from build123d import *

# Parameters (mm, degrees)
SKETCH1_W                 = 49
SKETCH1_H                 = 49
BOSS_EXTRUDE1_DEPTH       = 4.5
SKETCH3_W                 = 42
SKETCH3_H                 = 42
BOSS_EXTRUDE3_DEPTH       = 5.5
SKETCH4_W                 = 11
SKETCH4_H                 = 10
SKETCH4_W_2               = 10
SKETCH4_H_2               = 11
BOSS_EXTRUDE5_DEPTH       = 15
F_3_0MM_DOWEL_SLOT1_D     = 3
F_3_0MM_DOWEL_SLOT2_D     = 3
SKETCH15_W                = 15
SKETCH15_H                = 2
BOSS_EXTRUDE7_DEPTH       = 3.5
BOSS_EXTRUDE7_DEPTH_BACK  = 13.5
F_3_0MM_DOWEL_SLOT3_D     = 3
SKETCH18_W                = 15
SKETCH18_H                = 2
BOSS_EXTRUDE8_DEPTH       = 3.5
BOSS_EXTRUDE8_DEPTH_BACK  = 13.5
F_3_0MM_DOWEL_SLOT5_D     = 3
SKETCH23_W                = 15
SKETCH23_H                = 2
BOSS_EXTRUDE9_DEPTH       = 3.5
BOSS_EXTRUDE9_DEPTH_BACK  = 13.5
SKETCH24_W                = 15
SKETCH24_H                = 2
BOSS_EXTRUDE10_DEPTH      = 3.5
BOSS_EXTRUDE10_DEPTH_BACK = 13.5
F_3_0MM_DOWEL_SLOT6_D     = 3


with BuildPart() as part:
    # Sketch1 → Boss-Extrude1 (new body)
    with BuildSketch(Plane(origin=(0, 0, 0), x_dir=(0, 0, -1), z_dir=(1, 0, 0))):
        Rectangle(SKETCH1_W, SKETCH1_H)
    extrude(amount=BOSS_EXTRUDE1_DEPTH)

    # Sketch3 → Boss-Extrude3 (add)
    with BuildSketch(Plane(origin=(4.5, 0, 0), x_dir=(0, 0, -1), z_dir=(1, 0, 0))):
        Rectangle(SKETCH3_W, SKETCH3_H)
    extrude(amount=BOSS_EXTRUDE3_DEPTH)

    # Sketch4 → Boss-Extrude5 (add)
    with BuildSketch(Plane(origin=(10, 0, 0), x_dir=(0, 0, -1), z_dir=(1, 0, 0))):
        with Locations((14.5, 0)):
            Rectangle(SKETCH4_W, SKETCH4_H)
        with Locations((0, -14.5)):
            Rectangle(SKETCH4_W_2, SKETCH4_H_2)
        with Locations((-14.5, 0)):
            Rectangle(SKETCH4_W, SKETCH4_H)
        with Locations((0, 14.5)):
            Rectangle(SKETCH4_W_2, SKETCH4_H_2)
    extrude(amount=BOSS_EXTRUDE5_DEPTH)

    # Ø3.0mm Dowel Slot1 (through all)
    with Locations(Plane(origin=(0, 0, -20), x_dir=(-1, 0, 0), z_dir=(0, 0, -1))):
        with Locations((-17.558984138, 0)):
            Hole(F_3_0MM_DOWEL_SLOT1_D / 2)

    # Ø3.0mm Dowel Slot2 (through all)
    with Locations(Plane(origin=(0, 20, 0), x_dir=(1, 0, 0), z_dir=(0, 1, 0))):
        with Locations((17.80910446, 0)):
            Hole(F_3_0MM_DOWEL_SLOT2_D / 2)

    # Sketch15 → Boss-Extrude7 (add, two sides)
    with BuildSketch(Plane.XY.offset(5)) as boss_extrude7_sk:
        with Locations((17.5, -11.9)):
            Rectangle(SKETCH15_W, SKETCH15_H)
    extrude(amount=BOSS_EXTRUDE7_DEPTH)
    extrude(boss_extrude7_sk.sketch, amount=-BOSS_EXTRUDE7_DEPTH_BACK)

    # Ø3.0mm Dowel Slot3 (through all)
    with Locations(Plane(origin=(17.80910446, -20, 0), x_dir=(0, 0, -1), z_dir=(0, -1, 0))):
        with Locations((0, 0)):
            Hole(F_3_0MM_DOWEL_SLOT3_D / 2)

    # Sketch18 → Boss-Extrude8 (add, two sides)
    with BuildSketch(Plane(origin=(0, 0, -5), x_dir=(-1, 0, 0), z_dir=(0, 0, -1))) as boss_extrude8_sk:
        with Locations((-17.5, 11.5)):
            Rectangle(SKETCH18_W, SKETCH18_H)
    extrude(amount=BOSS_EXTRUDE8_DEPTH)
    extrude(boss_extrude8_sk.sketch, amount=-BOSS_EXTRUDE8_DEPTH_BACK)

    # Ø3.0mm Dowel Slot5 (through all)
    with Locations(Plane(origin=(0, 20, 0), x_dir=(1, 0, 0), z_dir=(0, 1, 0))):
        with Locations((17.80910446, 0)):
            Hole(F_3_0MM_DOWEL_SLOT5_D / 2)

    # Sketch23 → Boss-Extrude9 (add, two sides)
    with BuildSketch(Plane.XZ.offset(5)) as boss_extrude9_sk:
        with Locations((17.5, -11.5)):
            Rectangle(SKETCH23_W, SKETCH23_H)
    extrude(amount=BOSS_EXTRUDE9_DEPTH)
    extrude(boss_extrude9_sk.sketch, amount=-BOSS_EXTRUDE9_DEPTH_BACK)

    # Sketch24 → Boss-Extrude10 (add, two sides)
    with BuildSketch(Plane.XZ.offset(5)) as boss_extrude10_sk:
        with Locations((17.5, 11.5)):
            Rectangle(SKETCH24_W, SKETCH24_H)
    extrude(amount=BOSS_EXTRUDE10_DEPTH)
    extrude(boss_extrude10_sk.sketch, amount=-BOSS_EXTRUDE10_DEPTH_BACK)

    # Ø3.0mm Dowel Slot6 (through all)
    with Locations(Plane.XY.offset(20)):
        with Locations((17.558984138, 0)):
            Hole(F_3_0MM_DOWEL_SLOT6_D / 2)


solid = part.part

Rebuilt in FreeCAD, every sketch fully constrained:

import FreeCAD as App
import Part
import Sketcher
Q = App.Units.Quantity


def add_polygon(sketch, points):
    """Adds a closed chain of lines whose ends are joined by coincident constraints."""
    first, n = sketch.GeometryCount, len(points)
    for a, b in zip(points, points[1:] + points[:1]):
        sketch.addGeometry(Part.LineSegment(App.Vector(*a, 0), App.Vector(*b, 0)), False)
    for i in range(n):
        sketch.addConstraint(Sketcher.Constraint("Coincident", first + i, 2, first + (i + 1) % n, 1))

doc = App.newDocument("Part")
body = doc.addObject("PartDesign::Body", "Body")

# Sketch on YZ plane
sketch1 = body.newObject("Sketcher::SketchObject", "Sketch")
sketch1.AttachmentSupport = (doc.getObject("YZ_Plane"), [""])
sketch1.MapMode = "FlatFace"
add_polygon(sketch1, [(24, 24), (-24, 24), (-24, -24), (24, -24)])  # lines 0-3
sketch1.addConstraint(Sketcher.Constraint("Horizontal", 0))
sketch1.addConstraint(Sketcher.Constraint("Vertical", 1))
sketch1.addConstraint(Sketcher.Constraint("Horizontal", 2))
sketch1.addConstraint(Sketcher.Constraint("Vertical", 3))
sketch1.addConstraint(Sketcher.Constraint("Symmetric", 0, 2, 2, 2, -1, 1))
sketch1.addConstraint(Sketcher.Constraint("Equal", 2, 1))
sketch1.addConstraint(Sketcher.Constraint("DistanceX", 0, 2, 0, 1, Q("49 mm")))
pad1 = body.newObject("PartDesign::Pad", "Pad")
pad1.Profile = sketch1
pad1.Length = 4.5

# Sketch on YZ plane
sketch2 = body.newObject("Sketcher::SketchObject", "Sketch001")
sketch2.AttachmentSupport = (doc.getObject("YZ_Plane"), [""])
sketch2.MapMode = "FlatFace"
sketch2.AttachmentOffset = App.Placement(App.Vector(0, 0, 4.5), App.Rotation())
add_polygon(sketch2, [(21, 21), (-21, 21), (-21, -21), (21, -21)])  # lines 0-3
sketch2.addConstraint(Sketcher.Constraint("Horizontal", 0))
sketch2.addConstraint(Sketcher.Constraint("Vertical", 1))
sketch2.addConstraint(Sketcher.Constraint("Horizontal", 2))
sketch2.addConstraint(Sketcher.Constraint("Vertical", 3))
sketch2.addConstraint(Sketcher.Constraint("Symmetric", 0, 2, 2, 2, -1, 1))
sketch2.addConstraint(Sketcher.Constraint("Equal", 2, 1))
sketch2.addConstraint(Sketcher.Constraint("DistanceX", 0, 2, 0, 1, Q("42 mm")))
pad2 = body.newObject("PartDesign::Pad", "Pad001")
pad2.Profile = sketch2
pad2.Length = 5.5

# Sketch on YZ plane
sketch3 = body.newObject("Sketcher::SketchObject", "Sketch002")
sketch3.AttachmentSupport = (doc.getObject("YZ_Plane"), [""])
sketch3.MapMode = "FlatFace"
sketch3.AttachmentOffset = App.Placement(App.Vector(0, 0, 10), App.Rotation())
add_polygon(sketch3, [(5, -9), (-5, -9), (-5, -20), (5, -20)])  # lines 0-3
add_polygon(sketch3, [(-9, 5), (-20, 5), (-20, -5), (-9, -5)])  # lines 4-7
add_polygon(sketch3, [(5, 20), (-5, 20), (-5, 9), (5, 9)])  # lines 8-11
add_polygon(sketch3, [(20, 5), (9, 5), (9, -5), (20, -5)])  # lines 12-15
sketch3.addConstraint(Sketcher.Constraint("Horizontal", 0))
sketch3.addConstraint(Sketcher.Constraint("Vertical", 1))
sketch3.addConstraint(Sketcher.Constraint("Horizontal", 2))
sketch3.addConstraint(Sketcher.Constraint("Vertical", 3))
sketch3.addConstraint(Sketcher.Constraint("Horizontal", 4))
sketch3.addConstraint(Sketcher.Constraint("Vertical", 5))
sketch3.addConstraint(Sketcher.Constraint("Horizontal", 6))
sketch3.addConstraint(Sketcher.Constraint("Vertical", 7))
sketch3.addConstraint(Sketcher.Constraint("Horizontal", 8))
sketch3.addConstraint(Sketcher.Constraint("Vertical", 9))
sketch3.addConstraint(Sketcher.Constraint("Horizontal", 10))
sketch3.addConstraint(Sketcher.Constraint("Vertical", 11))
sketch3.addConstraint(Sketcher.Constraint("Horizontal", 12))
sketch3.addConstraint(Sketcher.Constraint("Vertical", 13))
sketch3.addConstraint(Sketcher.Constraint("Horizontal", 14))
sketch3.addConstraint(Sketcher.Constraint("Vertical", 15))
sketch3.addConstraint(Sketcher.Constraint("Symmetric", 2, 2, 8, 2, -1, 1))
sketch3.addConstraint(Sketcher.Constraint("Symmetric", 0, 2, 10, 2, -1, 1))
sketch3.addConstraint(Sketcher.Constraint("Symmetric", 6, 2, 12, 2, -1, 1))
sketch3.addConstraint(Sketcher.Constraint("Symmetric", 4, 2, 14, 2, -1, 1))
sketch3.addConstraint(Sketcher.Constraint("Horizontal", 7, 2, 12, 2))
sketch3.addConstraint(Sketcher.Constraint("Vertical", 1, 2, 8, 2))
sketch3.addConstraint(Sketcher.Constraint("Equal", 14, 1))
sketch3.addConstraint(Sketcher.Constraint("Equal", 10, 5))
sketch3.addConstraint(Sketcher.Constraint("DistanceX", 0, 2, 0, 1, Q("10 mm")))
sketch3.addConstraint(Sketcher.Constraint("DistanceX", 4, 2, 4, 1, Q("11 mm")))
sketch3.addConstraint(Sketcher.Constraint("DistanceY", 0, 2, -1, 1, Q("9 mm")))
sketch3.addConstraint(Sketcher.Constraint("DistanceX", 4, 2, -1, 1, Q("20 mm")))
pad3 = body.newObject("PartDesign::Pad", "Pad002")
pad3.Profile = sketch3
pad3.Length = 15

# Sketch on XY plane
sketch4 = body.newObject("Sketcher::SketchObject", "Sketch003")
sketch4.AttachmentSupport = (doc.getObject("XY_Plane"), [""])
sketch4.MapMode = "FlatFace"
sketch4.AttachmentOffset = App.Placement(App.Vector(0, 0, -20), App.Rotation())
sketch4.addGeometry(Part.Circle(App.Vector(17.6, 0, 0), App.Vector(0, 0, 1), 1.5), False)
sketch4.addConstraint(Sketcher.Constraint("PointOnObject", 0, 3, -1))
sketch4.addConstraint(Sketcher.Constraint("Diameter", 0, Q("3 mm")))
sketch4.addConstraint(Sketcher.Constraint("DistanceX", -1, 1, 0, 3, Q("17.558984 mm")))
doc.recompute()
hole = body.newObject("PartDesign::Hole", "Hole")
hole.Profile = sketch4
hole.ThreadType = "None"
hole.Diameter = 3
hole.DepthType = "ThroughAll"
hole.Reversed = True

# Sketch on XZ plane
sketch5 = body.newObject("Sketcher::SketchObject", "Sketch004")
sketch5.AttachmentSupport = (doc.getObject("XZ_Plane"), [""])
sketch5.MapMode = "FlatFace"
sketch5.AttachmentOffset = App.Placement(App.Vector(0, 0, -20), App.Rotation())
sketch5.addGeometry(Part.Circle(App.Vector(17.8, 0, 0), App.Vector(0, 0, 1), 1.5), False)
sketch5.addConstraint(Sketcher.Constraint("PointOnObject", 0, 3, -1))
sketch5.addConstraint(Sketcher.Constraint("Diameter", 0, Q("3 mm")))
sketch5.addConstraint(Sketcher.Constraint("DistanceX", -1, 1, 0, 3, Q("17.809104 mm")))
doc.recompute()
hole2 = body.newObject("PartDesign::Hole", "Hole001")
hole2.Profile = sketch5
hole2.ThreadType = "None"
hole2.Diameter = 3
hole2.DepthType = "ThroughAll"
hole2.Reversed = True

# Sketch on XY plane
sketch6 = body.newObject("Sketcher::SketchObject", "Sketch005")
sketch6.AttachmentSupport = (doc.getObject("XY_Plane"), [""])
sketch6.MapMode = "FlatFace"
sketch6.AttachmentOffset = App.Placement(App.Vector(0, 0, 5), App.Rotation())
add_polygon(sketch6, [(10, -10.9), (10, -12.9), (25, -12.9), (25, -10.9)])  # lines 0-3
sketch6.addConstraint(Sketcher.Constraint("Vertical", 0))
sketch6.addConstraint(Sketcher.Constraint("Horizontal", 1))
sketch6.addConstraint(Sketcher.Constraint("Vertical", 2))
sketch6.addConstraint(Sketcher.Constraint("Horizontal", 3))
sketch6.addConstraint(Sketcher.Constraint("DistanceX", 1, 1, 1, 2, Q("15 mm")))
sketch6.addConstraint(Sketcher.Constraint("DistanceY", 0, 2, 0, 1, Q("2 mm")))
sketch6.addConstraint(Sketcher.Constraint("DistanceX", -1, 1, 0, 2, Q("10 mm")))
sketch6.addConstraint(Sketcher.Constraint("DistanceY", 0, 2, -1, 1, Q("12.9 mm")))
pad4 = body.newObject("PartDesign::Pad", "Pad003")
pad4.Profile = sketch6
pad4.Type = "TwoLengths"
pad4.Length = 3.5
pad4.Length2 = 13.5

# Sketch on XZ plane
sketch7 = body.newObject("Sketcher::SketchObject", "Sketch006")
sketch7.AttachmentSupport = (doc.getObject("XZ_Plane"), [""])
sketch7.MapMode = "FlatFace"
sketch7.AttachmentOffset = App.Placement(App.Vector(0, 0, 20), App.Rotation())
sketch7.addGeometry(Part.Circle(App.Vector(17.8, 0, 0), App.Vector(0, 0, 1), 1.5), False)
sketch7.addConstraint(Sketcher.Constraint("PointOnObject", 0, 3, -1))
sketch7.addConstraint(Sketcher.Constraint("Diameter", 0, Q("3 mm")))
sketch7.addConstraint(Sketcher.Constraint("DistanceX", -1, 1, 0, 3, Q("17.809104 mm")))
doc.recompute()
hole3 = body.newObject("PartDesign::Hole", "Hole002")
hole3.Profile = sketch7
hole3.ThreadType = "None"
hole3.Diameter = 3
hole3.DepthType = "ThroughAll"

# Sketch on XY plane
sketch8 = body.newObject("Sketcher::SketchObject", "Sketch007")
sketch8.AttachmentSupport = (doc.getObject("XY_Plane"), [""])
sketch8.MapMode = "FlatFace"
sketch8.AttachmentOffset = App.Placement(App.Vector(0, 0, -5), App.Rotation())
add_polygon(sketch8, [(25, 12.5), (25, 10.5), (10, 10.5), (10, 12.5)])  # lines 0-3
sketch8.addConstraint(Sketcher.Constraint("Vertical", 0))
sketch8.addConstraint(Sketcher.Constraint("Horizontal", 1))
sketch8.addConstraint(Sketcher.Constraint("Vertical", 2))
sketch8.addConstraint(Sketcher.Constraint("Horizontal", 3))
sketch8.addConstraint(Sketcher.Constraint("DistanceX", 1, 2, 1, 1, Q("15 mm")))
sketch8.addConstraint(Sketcher.Constraint("DistanceY", 0, 2, 0, 1, Q("2 mm")))
sketch8.addConstraint(Sketcher.Constraint("DistanceX", -1, 1, 0, 2, Q("25 mm")))
sketch8.addConstraint(Sketcher.Constraint("DistanceY", -1, 1, 0, 2, Q("10.5 mm")))
pad5 = body.newObject("PartDesign::Pad", "Pad004")
pad5.Profile = sketch8
pad5.Type = "TwoLengths"
pad5.Length = 3.5
pad5.Length2 = 13.5
pad5.Reversed = True

# Sketch on XZ plane
sketch9 = body.newObject("Sketcher::SketchObject", "Sketch008")
sketch9.AttachmentSupport = (doc.getObject("XZ_Plane"), [""])
sketch9.MapMode = "FlatFace"
sketch9.AttachmentOffset = App.Placement(App.Vector(0, 0, -20), App.Rotation())
sketch9.addGeometry(Part.Circle(App.Vector(17.8, 0, 0), App.Vector(0, 0, 1), 1.5), False)
sketch9.addConstraint(Sketcher.Constraint("PointOnObject", 0, 3, -1))
sketch9.addConstraint(Sketcher.Constraint("Diameter", 0, Q("3 mm")))
sketch9.addConstraint(Sketcher.Constraint("DistanceX", -1, 1, 0, 3, Q("17.809104 mm")))
doc.recompute()
hole4 = body.newObject("PartDesign::Hole", "Hole003")
hole4.Profile = sketch9
hole4.ThreadType = "None"
hole4.Diameter = 3
hole4.DepthType = "ThroughAll"
hole4.Reversed = True

# Sketch on XZ plane
sketch10 = body.newObject("Sketcher::SketchObject", "Sketch009")
sketch10.AttachmentSupport = (doc.getObject("XZ_Plane"), [""])
sketch10.MapMode = "FlatFace"
sketch10.AttachmentOffset = App.Placement(App.Vector(0, 0, 5), App.Rotation())
add_polygon(sketch10, [(10, -10.5), (10, -12.5), (25, -12.5), (25, -10.5)])  # lines 0-3
sketch10.addConstraint(Sketcher.Constraint("Vertical", 0))
sketch10.addConstraint(Sketcher.Constraint("Horizontal", 1))
sketch10.addConstraint(Sketcher.Constraint("Vertical", 2))
sketch10.addConstraint(Sketcher.Constraint("Horizontal", 3))
sketch10.addConstraint(Sketcher.Constraint("DistanceX", 1, 1, 1, 2, Q("15 mm")))
sketch10.addConstraint(Sketcher.Constraint("DistanceY", 0, 2, 0, 1, Q("2 mm")))
sketch10.addConstraint(Sketcher.Constraint("DistanceX", -1, 1, 0, 2, Q("10 mm")))
sketch10.addConstraint(Sketcher.Constraint("DistanceY", 0, 2, -1, 1, Q("12.5 mm")))
pad6 = body.newObject("PartDesign::Pad", "Pad005")
pad6.Profile = sketch10
pad6.Type = "TwoLengths"
pad6.Length = 3.5
pad6.Length2 = 13.5

# Sketch on XZ plane
sketch11 = body.newObject("Sketcher::SketchObject", "Sketch010")
sketch11.AttachmentSupport = (doc.getObject("XZ_Plane"), [""])
sketch11.MapMode = "FlatFace"
sketch11.AttachmentOffset = App.Placement(App.Vector(0, 0, 5), App.Rotation())
add_polygon(sketch11, [(10, 12.5), (10, 10.5), (25, 10.5), (25, 12.5)])  # lines 0-3
sketch11.addConstraint(Sketcher.Constraint("Vertical", 0))
sketch11.addConstraint(Sketcher.Constraint("Horizontal", 1))
sketch11.addConstraint(Sketcher.Constraint("Vertical", 2))
sketch11.addConstraint(Sketcher.Constraint("Horizontal", 3))
sketch11.addConstraint(Sketcher.Constraint("DistanceX", 1, 1, 1, 2, Q("15 mm")))
sketch11.addConstraint(Sketcher.Constraint("DistanceY", 0, 2, 0, 1, Q("2 mm")))
sketch11.addConstraint(Sketcher.Constraint("DistanceX", -1, 1, 0, 2, Q("10 mm")))
sketch11.addConstraint(Sketcher.Constraint("DistanceY", -1, 1, 0, 2, Q("10.5 mm")))
pad7 = body.newObject("PartDesign::Pad", "Pad006")
pad7.Profile = sketch11
pad7.Type = "TwoLengths"
pad7.Length = 3.5
pad7.Length2 = 13.5

# Sketch on XY plane
sketch12 = body.newObject("Sketcher::SketchObject", "Sketch011")
sketch12.AttachmentSupport = (doc.getObject("XY_Plane"), [""])
sketch12.MapMode = "FlatFace"
sketch12.AttachmentOffset = App.Placement(App.Vector(0, 0, 20), App.Rotation())
sketch12.addGeometry(Part.Circle(App.Vector(17.6, 0, 0), App.Vector(0, 0, 1), 1.5), False)
sketch12.addConstraint(Sketcher.Constraint("PointOnObject", 0, 3, -1))
sketch12.addConstraint(Sketcher.Constraint("Diameter", 0, Q("3 mm")))
sketch12.addConstraint(Sketcher.Constraint("DistanceX", -1, 1, 0, 3, Q("17.558984 mm")))
doc.recompute()
hole5 = body.newObject("PartDesign::Hole", "Hole004")
hole5.Profile = sketch12
hole5.ThreadType = "None"
hole5.Diameter = 3
hole5.DepthType = "ThroughAll"

doc.recompute()
